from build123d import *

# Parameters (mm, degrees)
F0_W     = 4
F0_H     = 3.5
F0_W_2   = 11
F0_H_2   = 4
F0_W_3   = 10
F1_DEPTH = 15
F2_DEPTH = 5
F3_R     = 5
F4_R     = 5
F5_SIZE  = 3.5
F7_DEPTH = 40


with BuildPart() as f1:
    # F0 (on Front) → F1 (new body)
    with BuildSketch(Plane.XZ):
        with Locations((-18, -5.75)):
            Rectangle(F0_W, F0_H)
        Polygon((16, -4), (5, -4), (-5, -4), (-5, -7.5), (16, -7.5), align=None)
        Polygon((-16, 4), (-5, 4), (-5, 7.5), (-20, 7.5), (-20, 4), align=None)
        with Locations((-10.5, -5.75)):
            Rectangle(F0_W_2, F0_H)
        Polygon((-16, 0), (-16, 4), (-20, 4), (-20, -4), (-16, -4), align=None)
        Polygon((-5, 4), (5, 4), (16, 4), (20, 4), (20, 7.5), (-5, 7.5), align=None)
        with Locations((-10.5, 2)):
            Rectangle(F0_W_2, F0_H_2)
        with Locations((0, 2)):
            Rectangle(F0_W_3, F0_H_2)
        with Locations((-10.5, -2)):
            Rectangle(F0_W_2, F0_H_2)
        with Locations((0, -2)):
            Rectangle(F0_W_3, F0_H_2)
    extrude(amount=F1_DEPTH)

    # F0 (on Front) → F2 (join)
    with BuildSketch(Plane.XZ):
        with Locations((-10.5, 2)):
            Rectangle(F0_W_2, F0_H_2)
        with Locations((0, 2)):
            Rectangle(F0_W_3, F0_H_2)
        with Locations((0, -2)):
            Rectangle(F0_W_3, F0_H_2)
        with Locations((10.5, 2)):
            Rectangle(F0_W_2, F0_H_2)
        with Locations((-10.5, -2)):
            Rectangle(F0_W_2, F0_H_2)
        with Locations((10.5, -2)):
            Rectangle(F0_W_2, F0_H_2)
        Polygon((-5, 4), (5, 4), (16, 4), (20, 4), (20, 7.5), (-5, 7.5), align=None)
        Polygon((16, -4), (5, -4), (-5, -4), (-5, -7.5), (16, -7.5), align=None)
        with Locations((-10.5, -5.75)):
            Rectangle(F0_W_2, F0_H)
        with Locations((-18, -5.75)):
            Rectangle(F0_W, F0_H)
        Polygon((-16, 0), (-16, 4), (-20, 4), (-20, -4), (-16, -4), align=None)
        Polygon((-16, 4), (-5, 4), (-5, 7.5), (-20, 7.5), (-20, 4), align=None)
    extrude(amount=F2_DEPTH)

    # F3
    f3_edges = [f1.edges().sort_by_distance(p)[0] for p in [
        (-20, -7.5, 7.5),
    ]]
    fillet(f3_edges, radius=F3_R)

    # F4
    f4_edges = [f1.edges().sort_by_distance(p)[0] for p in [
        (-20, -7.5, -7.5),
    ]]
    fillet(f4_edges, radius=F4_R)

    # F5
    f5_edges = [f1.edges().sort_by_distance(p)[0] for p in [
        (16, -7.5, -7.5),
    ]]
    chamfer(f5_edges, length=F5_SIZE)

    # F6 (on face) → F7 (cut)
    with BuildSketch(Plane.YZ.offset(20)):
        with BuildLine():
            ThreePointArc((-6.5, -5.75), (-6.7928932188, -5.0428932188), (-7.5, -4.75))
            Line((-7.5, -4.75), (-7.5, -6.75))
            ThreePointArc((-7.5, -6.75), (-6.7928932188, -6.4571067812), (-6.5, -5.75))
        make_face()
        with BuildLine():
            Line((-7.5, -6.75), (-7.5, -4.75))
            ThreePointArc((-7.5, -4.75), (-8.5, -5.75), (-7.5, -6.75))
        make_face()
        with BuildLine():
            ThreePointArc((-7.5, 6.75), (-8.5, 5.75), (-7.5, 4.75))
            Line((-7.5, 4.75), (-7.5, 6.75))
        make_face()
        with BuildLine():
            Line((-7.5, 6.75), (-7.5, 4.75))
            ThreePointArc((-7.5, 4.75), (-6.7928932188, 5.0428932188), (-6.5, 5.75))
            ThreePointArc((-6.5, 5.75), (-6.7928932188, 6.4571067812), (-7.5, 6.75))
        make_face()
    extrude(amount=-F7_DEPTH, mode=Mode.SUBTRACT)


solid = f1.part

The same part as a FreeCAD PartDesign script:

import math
import FreeCAD as App
import Part
import Sketcher


def edges_at(feature, points):
    """Names of the edges that pass closest to the given points."""
    edges = feature.Shape.Edges
    near = lambda p: min(range(len(edges)), key=lambda i: edges[i].distToShape(Part.Vertex(*p))[0])
    return sorted({f"Edge{near(p) + 1}" for p in points})

doc = App.newDocument("Part")
params = doc.addObject("Spreadsheet::Sheet", "Params")
for row, (alias, value) in enumerate([
    ("sketch1_width", "36 mm"),
    ("sketch1_width2", "11 mm"),
    ("sketch1_width3", "15 mm"),
    ("sketch1_height", "8 mm"),
    ("pad1_length", "15 mm"),
    ("sketch2_width", "36 mm"),
    ("sketch2_width2", "4 mm"),
    ("sketch2_height", "15 mm"),
    ("sketch2_height2", "11.5 mm"),
    ("pad2_length", "5 mm"),
    ("fillet_radius", "5 mm"),
    ("fillet2_radius", "5 mm"),
    ("chamfer_size", "3.5 mm"),
    ("sketch3_radius", "1 mm"),
    ("pocket1_length", "40 mm"),
], start=1):
    params.set(f"A{row}", alias)
    params.set(f"B{row}", "=" + value)
    params.setAlias(f"B{row}", alias)

body = doc.addObject("PartDesign::Body", "Body")

sketch1 = body.newObject("Sketcher::SketchObject", "Sketch")
sketch1.AttachmentSupport = (doc.getObject("XZ_Plane"), [""])
sketch1.MapMode = "FlatFace"
sketch1.addGeometry(Part.LineSegment(App.Vector(-20, -7.5, 0), App.Vector(16, -7.5, 0)), False)
sketch1.addGeometry(Part.LineSegment(App.Vector(16, -7.5, 0), App.Vector(16, -4, 0)), False)
sketch1.addGeometry(Part.LineSegment(App.Vector(16, -4, 0), App.Vector(5, -4, 0)), False)
sketch1.addGeometry(Part.LineSegment(App.Vector(5, -4, 0), App.Vector(5, 4, 0)), False)
sketch1.addGeometry(Part.LineSegment(App.Vector(5, 4, 0), App.Vector(20, 4, 0)), False)
sketch1.addGeometry(Part.LineSegment(App.Vector(20, 4, 0), App.Vector(20, 7.5, 0)), False)
sketch1.addGeometry(Part.LineSegment(App.Vector(20, 7.5, 0), App.Vector(-20, 7.5, 0)), False)
sketch1.addGeometry(Part.LineSegment(App.Vector(-20, 7.5, 0), App.Vector(-20, -7.5, 0)), False)
sketch1.addConstraint(Sketcher.Constraint("Coincident", 0, 2, 1, 1))
sketch1.addConstraint(Sketcher.Constraint("Coincident", 1, 2, 2, 1))
sketch1.addConstraint(Sketcher.Constraint("Coincident", 2, 2, 3, 1))
sketch1.addConstraint(Sketcher.Constraint("Coincident", 3, 2, 4, 1))
sketch1.addConstraint(Sketcher.Constraint("Coincident", 4, 2, 5, 1))
sketch1.addConstraint(Sketcher.Constraint("Coincident", 5, 2, 6, 1))
sketch1.addConstraint(Sketcher.Constraint("Coincident", 6, 2, 7, 1))
sketch1.addConstraint(Sketcher.Constraint("Coincident", 7, 2, 0, 1))
sketch1.addConstraint(Sketcher.Constraint("Horizontal", 0))
sketch1.addConstraint(Sketcher.Constraint("Vertical", 1))
sketch1.addConstraint(Sketcher.Constraint("Horizontal", 2))
sketch1.addConstraint(Sketcher.Constraint("Vertical", 3))
sketch1.addConstraint(Sketcher.Constraint("Horizontal", 4))
sketch1.addConstraint(Sketcher.Constraint("Vertical", 5))
sketch1.addConstraint(Sketcher.Constraint("Horizontal", 6))
sketch1.addConstraint(Sketcher.Constraint("Vertical", 7))
sketch1.addConstraint(Sketcher.Constraint("Symmetric", 5, 2, 7, 2, -1, 1))
sketch1.addConstraint(Sketcher.Constraint("Equal", 1, 5))
sketch1.addConstraint(Sketcher.Constraint("Equal", 4, 7))
sketch1.addConstraint(Sketcher.Constraint("DistanceX", 0, 1, 0, 2, 36.0))
sketch1.addConstraint(Sketcher.Constraint("DistanceX", 2, 2, 2, 1, 11.0))
sketch1.addConstraint(Sketcher.Constraint("DistanceX", 4, 1, 4, 2, 15.0))
sketch1.addConstraint(Sketcher.Constraint("DistanceY", 3, 1, 3, 2, 8.0))
sketch1.setExpression("Constraints[19]", "Params.sketch1_width")
sketch1.setExpression("Constraints[20]", "Params.sketch1_width2")
sketch1.setExpression("Constraints[21]", "Params.sketch1_width3")
sketch1.setExpression("Constraints[22]", "Params.sketch1_height")
pad1 = body.newObject("PartDesign::Pad", "Pad")
pad1.Profile = sketch1
pad1.setExpression("Length", "Params.pad1_length")

sketch2 = body.newObject("Sketcher::SketchObject", "Sketch001")
sketch2.AttachmentSupport = (doc.getObject("XZ_Plane"), [""])
sketch2.MapMode = "FlatFace"
sketch2.addGeometry(Part.LineSegment(App.Vector(-20, -7.5, 0), App.Vector(16, -7.5, 0)), False)
sketch2.addGeometry(Part.LineSegment(App.Vector(16, -7.5, 0), App.Vector(16, 4, 0)), False)
sketch2.addGeometry(Part.LineSegment(App.Vector(16, 4, 0), App.Vector(20, 4, 0)), False)
sketch2.addGeometry(Part.LineSegment(App.Vector(20, 4, 0), App.Vector(20, 7.5, 0)), False)
sketch2.addGeometry(Part.LineSegment(App.Vector(20, 7.5, 0), App.Vector(-20, 7.5, 0)), False)
sketch2.addGeometry(Part.LineSegment(App.Vector(-20, 7.5, 0), App.Vector(-20, -7.5, 0)), False)
sketch2.addConstraint(Sketcher.Constraint("Coincident", 0, 2, 1, 1))
sketch2.addConstraint(Sketcher.Constraint("Coincident", 1, 2, 2, 1))
sketch2.addConstraint(Sketcher.Constraint("Coincident", 2, 2, 3, 1))
sketch2.addConstraint(Sketcher.Constraint("Coincident", 3, 2, 4, 1))
sketch2.addConstraint(Sketcher.Constraint("Coincident", 4, 2, 5, 1))
sketch2.addConstraint(Sketcher.Constraint("Coincident", 5, 2, 0, 1))
sketch2.addConstraint(Sketcher.Constraint("Horizontal", 0))
sketch2.addConstraint(Sketcher.Constraint("Vertical", 1))
sketch2.addConstraint(Sketcher.Constraint("Horizontal", 2))
sketch2.addConstraint(Sketcher.Constraint("Vertical", 3))
sketch2.addConstraint(Sketcher.Constraint("Horizontal", 4))
sketch2.addConstraint(Sketcher.Constraint("Vertical", 5))
sketch2.addConstraint(Sketcher.Constraint("Symmetric", 3, 2, 5, 2, -1, 1))
sketch2.addConstraint(Sketcher.Constraint("DistanceX", 0, 1, 0, 2, 36.0))
sketch2.addConstraint(Sketcher.Constraint("DistanceX", 2, 1, 2, 2, 4.0))
sketch2.addConstraint(Sketcher.Constraint("DistanceY", 5, 2, 5, 1, 15.0))
sketch2.addConstraint(Sketcher.Constraint("DistanceY", 1, 1, 1, 2, 11.5))
sketch2.setExpression("Constraints[13]", "Params.sketch2_width")
sketch2.setExpression("Constraints[14]", "Params.sketch2_width2")
sketch2.setExpression("Constraints[15]", "Params.sketch2_height")
sketch2.setExpression("Constraints[16]", "Params.sketch2_height2")
pad2 = body.newObject("PartDesign::Pad", "Pad001")
pad2.Profile = sketch2
pad2.setExpression("Length", "Params.pad2_length")
doc.recompute()

fillet = body.newObject("PartDesign::Fillet", "Fillet")
fillet.Base = (pad2, edges_at(pad2, [(-20, -7.5, 7.5)]))
fillet.setExpression("Radius", "Params.fillet_radius")
doc.recompute()

fillet2 = body.newObject("PartDesign::Fillet", "Fillet001")
fillet2.Base = (fillet, edges_at(fillet, [(-20, -7.5, -7.5)]))
fillet2.setExpression("Radius", "Params.fillet2_radius")
doc.recompute()

chamfer = body.newObject("PartDesign::Chamfer", "Chamfer")
chamfer.Base = (fillet2, edges_at(fillet2, [(16, -7.5, -7.5)]))
chamfer.setExpression("Size", "Params.chamfer_size")

sketch3 = body.newObject("Sketcher::SketchObject", "Sketch002")
sketch3.AttachmentSupport = (doc.getObject("YZ_Plane"), [""])
sketch3.MapMode = "FlatFace"
sketch3.AttachmentOffset = App.Placement(App.Vector(0, 0, 20), App.Rotation())
sketch3.addGeometry(Part.ArcOfCircle(Part.Circle(App.Vector(-7.5, -5.8, 0), App.Vector(0, 0, 1), 1), math.radians(0), math.radians(90)), False)
sketch3.addGeometry(Part.ArcOfCircle(Part.Circle(App.Vector(-7.5, -5.8, 0), App.Vector(0, 0, 1), 1), math.radians(90), math.radians(270)), False)
sketch3.addGeometry(Part.ArcOfCircle(Part.Circle(App.Vector(-7.5, -5.8, 0), App.Vector(0, 0, 1), 1), math.radians(-90), math.radians(0)), False)
sketch3.addGeometry(Part.ArcOfCircle(Part.Circle(App.Vector(-7.5, 5.8, 0), App.Vector(0, 0, 1), 1), math.radians(90), math.radians(270)), False)
sketch3.addGeometry(Part.ArcOfCircle(Part.Circle(App.Vector(-7.5, 5.8, 0), App.Vector(0, 0, 1), 1), math.radians(-90), math.radians(0)), False)
sketch3.addGeometry(Part.ArcOfCircle(Part.Circle(App.Vector(-7.5, 5.8, 0), App.Vector(0, 0, 1), 1), math.radians(0), math.radians(90)), False)
sketch3.addConstraint(Sketcher.Constraint("Tangent", 0, 2, 1, 1))
sketch3.addConstraint(Sketcher.Constraint("Tangent", 1, 2, 2, 1))
sketch3.addConstraint(Sketcher.Constraint("Tangent", 2, 2, 0, 1))
sketch3.addConstraint(Sketcher.Constraint("Tangent", 3, 2, 4, 1))
sketch3.addConstraint(Sketcher.Constraint("Tangent", 4, 2, 5, 1))
sketch3.addConstraint(Sketcher.Constraint("Tangent", 5, 2, 3, 1))
sketch3.addConstraint(Sketcher.Constraint("Equal", 2, 3))
sketch3.addConstraint(Sketcher.Constraint("Symmetric", 0, 3, 3, 3, -1))
sketch3.addConstraint(Sketcher.Constraint("Horizontal", 1, 3, 2, 2))
sketch3.addConstraint(Sketcher.Constraint("Horizontal", 5, 3, 4, 2))
sketch3.addConstraint(Sketcher.Constraint("Vertical", 5, 3, 0, 2))
sketch3.addConstraint(Sketcher.Constraint("Vertical", 0, 2, 1, 2))
sketch3.addConstraint(Sketcher.Constraint("Vertical", 1, 2, 3, 2))
sketch3.addConstraint(Sketcher.Constraint("Vertical", 3, 2, 5, 2))
sketch3.addConstraint(Sketcher.Constraint("Radius", 0, 1.0))
sketch3.addConstraint(Sketcher.Constraint("DistanceX", 0, 3, -1, 1, 7.5))
sketch3.addConstraint(Sketcher.Constraint("DistanceY", 0, 3, 3, 3, 11.5))
sketch3.setExpression("Constraints[14]", "Params.sketch3_radius")
pocket1 = body.newObject("PartDesign::Pocket", "Pocket")
pocket1.Profile = sketch3
pocket1.setExpression("Length", "Params.pocket1_length")

doc.recompute()
